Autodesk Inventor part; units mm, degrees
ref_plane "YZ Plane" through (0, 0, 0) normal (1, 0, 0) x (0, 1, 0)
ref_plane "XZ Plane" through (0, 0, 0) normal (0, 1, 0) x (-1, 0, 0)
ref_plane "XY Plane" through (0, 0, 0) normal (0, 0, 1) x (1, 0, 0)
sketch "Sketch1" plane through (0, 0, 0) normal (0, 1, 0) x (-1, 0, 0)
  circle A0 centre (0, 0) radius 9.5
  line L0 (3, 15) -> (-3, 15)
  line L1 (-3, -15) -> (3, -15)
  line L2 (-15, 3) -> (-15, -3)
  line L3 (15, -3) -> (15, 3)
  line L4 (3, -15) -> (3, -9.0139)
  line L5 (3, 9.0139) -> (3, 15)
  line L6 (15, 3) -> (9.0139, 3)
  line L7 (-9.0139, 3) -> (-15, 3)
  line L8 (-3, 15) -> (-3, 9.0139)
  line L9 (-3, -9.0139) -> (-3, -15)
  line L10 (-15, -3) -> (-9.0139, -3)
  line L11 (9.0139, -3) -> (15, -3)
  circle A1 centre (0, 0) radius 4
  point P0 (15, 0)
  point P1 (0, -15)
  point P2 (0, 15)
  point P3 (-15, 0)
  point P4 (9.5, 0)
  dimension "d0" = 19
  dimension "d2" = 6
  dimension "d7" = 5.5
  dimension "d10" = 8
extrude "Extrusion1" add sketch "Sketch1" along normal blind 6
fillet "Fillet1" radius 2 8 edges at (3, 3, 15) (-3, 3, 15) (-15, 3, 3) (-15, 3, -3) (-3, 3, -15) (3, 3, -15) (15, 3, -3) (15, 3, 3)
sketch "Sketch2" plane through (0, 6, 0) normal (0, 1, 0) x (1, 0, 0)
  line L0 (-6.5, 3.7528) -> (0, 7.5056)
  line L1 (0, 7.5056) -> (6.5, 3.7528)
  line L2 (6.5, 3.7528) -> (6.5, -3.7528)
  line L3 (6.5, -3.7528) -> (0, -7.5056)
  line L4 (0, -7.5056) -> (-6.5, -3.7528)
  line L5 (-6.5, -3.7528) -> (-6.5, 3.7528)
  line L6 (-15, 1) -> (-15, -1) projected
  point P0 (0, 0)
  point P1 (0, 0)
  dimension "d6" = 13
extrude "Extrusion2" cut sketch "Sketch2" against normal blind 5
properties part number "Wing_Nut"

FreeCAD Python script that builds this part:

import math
import FreeCAD as App
import Part
import Sketcher
Q = App.Units.Quantity


def edges_at(feature, points):
    """Names of the edges that pass closest to the given points."""
    edges = feature.Shape.Edges
    near = lambda p: min(range(len(edges)), key=lambda i: edges[i].distToShape(Part.Vertex(*p))[0])
    return sorted({f"Edge{near(p) + 1}" for p in points})

doc = App.newDocument("Part")
body = doc.addObject("PartDesign::Body", "Body")

sketch1 = doc.addObject("Sketcher::SketchObject", "Sketch")
body.addObject(sketch1)
sketch1.AttachmentSupport = (doc.XZ_Plane, [""])
sketch1.MapMode = "FlatFace"
sketch1.addGeometry([
    Part.ArcOfCircle(Part.Circle(App.Vector(0, 0, 0), App.Vector(0, 0, 1), 9.5), math.radians(-161.591561), math.radians(-108.408439)),
    Part.LineSegment(App.Vector(-9.0139, -3, 0), App.Vector(-15, -3, 0)),
    Part.LineSegment(App.Vector(-15, -3, 0), App.Vector(-15, 3, 0)),
    Part.LineSegment(App.Vector(-15, 3, 0), App.Vector(-9.0139, 3, 0)),
    Part.ArcOfCircle(Part.Circle(App.Vector(0, 0, 0), App.Vector(0, 0, 1), 9.5), math.radians(108.408439), math.radians(161.591561)),
    Part.LineSegment(App.Vector(-3, 9.0139, 0), App.Vector(-3, 15, 0)),
    Part.LineSegment(App.Vector(-3, 15, 0), App.Vector(3, 15, 0)),
    Part.LineSegment(App.Vector(3, 15, 0), App.Vector(3, 9.0139, 0)),
    Part.ArcOfCircle(Part.Circle(App.Vector(0, 0, 0), App.Vector(0, 0, 1), 9.5), math.radians(18.408439), math.radians(71.591561)),
    Part.LineSegment(App.Vector(9.0139, 3, 0), App.Vector(15, 3, 0)),
    Part.LineSegment(App.Vector(15, 3, 0), App.Vector(15, -3, 0)),
    Part.LineSegment(App.Vector(15, -3, 0), App.Vector(9.0139, -3, 0)),
    Part.ArcOfCircle(Part.Circle(App.Vector(0, 0, 0), App.Vector(0, 0, 1), 9.5), math.radians(-71.591561), math.radians(-18.408439)),
    Part.LineSegment(App.Vector(3, -9.0139, 0), App.Vector(3, -15, 0)),
    Part.LineSegment(App.Vector(3, -15, 0), App.Vector(-3, -15, 0)),
    Part.LineSegment(App.Vector(-3, -15, 0), App.Vector(-3, -9.0139, 0)),
    Part.Circle(App.Vector(0, 0, 0), App.Vector(0, 0, 1), 4),
], False)
sketch1.addConstraint([
    Sketcher.Constraint("Coincident", 0, 1, 1, 1),
    Sketcher.Constraint("Coincident", 1, 2, 2, 1),
    Sketcher.Constraint("Coincident", 2, 2, 3, 1),
    Sketcher.Constraint("Coincident", 3, 2, 4, 2),
    Sketcher.Constraint("Coincident", 4, 1, 5, 1),
    Sketcher.Constraint("Coincident", 5, 2, 6, 1),
    Sketcher.Constraint("Coincident", 6, 2, 7, 1),
    Sketcher.Constraint("Coincident", 7, 2, 8, 2),
    Sketcher.Constraint("Coincident", 8, 1, 9, 1),
    Sketcher.Constraint("Coincident", 9, 2, 10, 1),
    Sketcher.Constraint("Coincident", 10, 2, 11, 1),
    Sketcher.Constraint("Coincident", 11, 2, 12, 2),
    Sketcher.Constraint("Coincident", 12, 1, 13, 1),
    Sketcher.Constraint("Coincident", 13, 2, 14, 1),
    Sketcher.Constraint("Coincident", 14, 2, 15, 1),
    Sketcher.Constraint("Coincident", 15, 2, 0, 2),
    Sketcher.Constraint("Horizontal", 1),
    Sketcher.Constraint("Vertical", 2),
    Sketcher.Constraint("Horizontal", 3),
    Sketcher.Constraint("Vertical", 5),
    Sketcher.Constraint("Horizontal", 6),
    Sketcher.Constraint("Vertical", 7),
    Sketcher.Constraint("Horizontal", 9),
    Sketcher.Constraint("Vertical", 10),
    Sketcher.Constraint("Horizontal", 11),
    Sketcher.Constraint("Vertical", 13),
    Sketcher.Constraint("Horizontal", 14),
    Sketcher.Constraint("Vertical", 15),
    Sketcher.Constraint("Coincident", 0, 3, -1, 1),
    Sketcher.Constraint("Coincident", 4, 3, -1, 1),
    Sketcher.Constraint("Coincident", 8, 3, -1, 1),
    Sketcher.Constraint("Coincident", 12, 3, -1, 1),
    Sketcher.Constraint("Coincident", 16, 3, -1, 1),
    Sketcher.Constraint("Equal", 0, 4),
    Sketcher.Constraint("Equal", 4, 8),
    Sketcher.Constraint("Equal", 8, 12),
    Sketcher.Constraint("Symmetric", 1, 2, 9, 2, -1, 1),
    Sketcher.Constraint("Symmetric", 5, 2, 13, 2, -1, 1),
    Sketcher.Constraint("Horizontal", 4, 1, 7, 2),
    Sketcher.Constraint("Horizontal", 3, 2, 8, 1),
    Sketcher.Constraint("Horizontal", 1, 2, 10, 2),
    Sketcher.Constraint("Horizontal", 12, 1, 15, 2),
    Sketcher.Constraint("Equal", 14, 2),
    Sketcher.Constraint("Equal", 11, 5),
    Sketcher.Constraint("Diameter", 16, Q("8 mm")),
    Sketcher.Constraint("Radius", 0, Q("9.5 mm")),
    Sketcher.Constraint("DistanceX", 6, 1, 6, 2, Q("6 mm")),
    Sketcher.Constraint("DistanceX", 1, 2, -1, 1, Q("15 mm")),
])
pad1 = doc.addObject("PartDesign::Pad", "Pad")
body.addObject(pad1)
pad1.Profile = sketch1
pad1.Length = 6
pad1.Reversed = True
doc.recompute()

fillet = doc.addObject("PartDesign::Fillet", "Fillet")
body.addObject(fillet)
fillet.Base = (pad1, edges_at(pad1, [
    (3, 3, 15),
    (-3, 3, 15),
    (-15, 3, 3),
    (-15, 3, -3),
    (-3, 3, -15),
    (3, 3, -15),
    (15, 3, -3),
    (15, 3, 3),
]))
fillet.Radius = 2

sketch2 = doc.addObject("Sketcher::SketchObject", "Sketch001")
body.addObject(sketch2)
sketch2.AttachmentSupport = (doc.XZ_Plane, [""])
sketch2.MapMode = "FlatFace"
sketch2.AttachmentOffset = App.Placement(App.Vector(0, 0, -6), App.Rotation())
sketch2.addGeometry([
    Part.LineSegment(App.Vector(0, -7.5056, 0), App.Vector(-6.5, -3.7528, 0)),
    Part.LineSegment(App.Vector(-6.5, -3.7528, 0), App.Vector(-6.5, 3.7528, 0)),
    Part.LineSegment(App.Vector(-6.5, 3.7528, 0), App.Vector(0, 7.5056, 0)),
    Part.LineSegment(App.Vector(0, 7.5056, 0), App.Vector(6.5, 3.7528, 0)),
    Part.LineSegment(App.Vector(6.5, 3.7528, 0), App.Vector(6.5, -3.7528, 0)),
    Part.LineSegment(App.Vector(6.5, -3.7528, 0), App.Vector(0, -7.5056, 0)),
], False)
sketch2.addConstraint([
    Sketcher.Constraint("Coincident", 0, 2, 1, 1),
    Sketcher.Constraint("Coincident", 1, 2, 2, 1),
    Sketcher.Constraint("Coincident", 2, 2, 3, 1),
    Sketcher.Constraint("Coincident", 3, 2, 4, 1),
    Sketcher.Constraint("Coincident", 4, 2, 5, 1),
    Sketcher.Constraint("Coincident", 5, 2, 0, 1),
    Sketcher.Constraint("Vertical", 1),
    Sketcher.Constraint("Vertical", 4),
    Sketcher.Constraint("Symmetric", 0, 2, 3, 2, -1, 1),
    Sketcher.Constraint("Symmetric", 2, 2, 5, 2, -1, 1),
    Sketcher.Constraint("PointOnObject", 2, 2, -2),
    Sketcher.Constraint("Parallel", 2, 5),
    Sketcher.Constraint("Horizontal", 1, 2, 3, 2),
    Sketcher.Constraint("DistanceX", 1, 2, 3, 2, Q("13 mm")),
    Sketcher.Constraint("Angle", 0, Q("149.9998 deg")),
    Sketcher.Constraint("DistanceY", 1, 1, 1, 2, Q("7.5056 mm")),
])
pocket1 = doc.addObject("PartDesign::Pocket", "Pocket")
body.addObject(pocket1)
pocket1.Profile = sketch2
pocket1.Length = 5
pocket1.Reversed = True

doc.recompute()
